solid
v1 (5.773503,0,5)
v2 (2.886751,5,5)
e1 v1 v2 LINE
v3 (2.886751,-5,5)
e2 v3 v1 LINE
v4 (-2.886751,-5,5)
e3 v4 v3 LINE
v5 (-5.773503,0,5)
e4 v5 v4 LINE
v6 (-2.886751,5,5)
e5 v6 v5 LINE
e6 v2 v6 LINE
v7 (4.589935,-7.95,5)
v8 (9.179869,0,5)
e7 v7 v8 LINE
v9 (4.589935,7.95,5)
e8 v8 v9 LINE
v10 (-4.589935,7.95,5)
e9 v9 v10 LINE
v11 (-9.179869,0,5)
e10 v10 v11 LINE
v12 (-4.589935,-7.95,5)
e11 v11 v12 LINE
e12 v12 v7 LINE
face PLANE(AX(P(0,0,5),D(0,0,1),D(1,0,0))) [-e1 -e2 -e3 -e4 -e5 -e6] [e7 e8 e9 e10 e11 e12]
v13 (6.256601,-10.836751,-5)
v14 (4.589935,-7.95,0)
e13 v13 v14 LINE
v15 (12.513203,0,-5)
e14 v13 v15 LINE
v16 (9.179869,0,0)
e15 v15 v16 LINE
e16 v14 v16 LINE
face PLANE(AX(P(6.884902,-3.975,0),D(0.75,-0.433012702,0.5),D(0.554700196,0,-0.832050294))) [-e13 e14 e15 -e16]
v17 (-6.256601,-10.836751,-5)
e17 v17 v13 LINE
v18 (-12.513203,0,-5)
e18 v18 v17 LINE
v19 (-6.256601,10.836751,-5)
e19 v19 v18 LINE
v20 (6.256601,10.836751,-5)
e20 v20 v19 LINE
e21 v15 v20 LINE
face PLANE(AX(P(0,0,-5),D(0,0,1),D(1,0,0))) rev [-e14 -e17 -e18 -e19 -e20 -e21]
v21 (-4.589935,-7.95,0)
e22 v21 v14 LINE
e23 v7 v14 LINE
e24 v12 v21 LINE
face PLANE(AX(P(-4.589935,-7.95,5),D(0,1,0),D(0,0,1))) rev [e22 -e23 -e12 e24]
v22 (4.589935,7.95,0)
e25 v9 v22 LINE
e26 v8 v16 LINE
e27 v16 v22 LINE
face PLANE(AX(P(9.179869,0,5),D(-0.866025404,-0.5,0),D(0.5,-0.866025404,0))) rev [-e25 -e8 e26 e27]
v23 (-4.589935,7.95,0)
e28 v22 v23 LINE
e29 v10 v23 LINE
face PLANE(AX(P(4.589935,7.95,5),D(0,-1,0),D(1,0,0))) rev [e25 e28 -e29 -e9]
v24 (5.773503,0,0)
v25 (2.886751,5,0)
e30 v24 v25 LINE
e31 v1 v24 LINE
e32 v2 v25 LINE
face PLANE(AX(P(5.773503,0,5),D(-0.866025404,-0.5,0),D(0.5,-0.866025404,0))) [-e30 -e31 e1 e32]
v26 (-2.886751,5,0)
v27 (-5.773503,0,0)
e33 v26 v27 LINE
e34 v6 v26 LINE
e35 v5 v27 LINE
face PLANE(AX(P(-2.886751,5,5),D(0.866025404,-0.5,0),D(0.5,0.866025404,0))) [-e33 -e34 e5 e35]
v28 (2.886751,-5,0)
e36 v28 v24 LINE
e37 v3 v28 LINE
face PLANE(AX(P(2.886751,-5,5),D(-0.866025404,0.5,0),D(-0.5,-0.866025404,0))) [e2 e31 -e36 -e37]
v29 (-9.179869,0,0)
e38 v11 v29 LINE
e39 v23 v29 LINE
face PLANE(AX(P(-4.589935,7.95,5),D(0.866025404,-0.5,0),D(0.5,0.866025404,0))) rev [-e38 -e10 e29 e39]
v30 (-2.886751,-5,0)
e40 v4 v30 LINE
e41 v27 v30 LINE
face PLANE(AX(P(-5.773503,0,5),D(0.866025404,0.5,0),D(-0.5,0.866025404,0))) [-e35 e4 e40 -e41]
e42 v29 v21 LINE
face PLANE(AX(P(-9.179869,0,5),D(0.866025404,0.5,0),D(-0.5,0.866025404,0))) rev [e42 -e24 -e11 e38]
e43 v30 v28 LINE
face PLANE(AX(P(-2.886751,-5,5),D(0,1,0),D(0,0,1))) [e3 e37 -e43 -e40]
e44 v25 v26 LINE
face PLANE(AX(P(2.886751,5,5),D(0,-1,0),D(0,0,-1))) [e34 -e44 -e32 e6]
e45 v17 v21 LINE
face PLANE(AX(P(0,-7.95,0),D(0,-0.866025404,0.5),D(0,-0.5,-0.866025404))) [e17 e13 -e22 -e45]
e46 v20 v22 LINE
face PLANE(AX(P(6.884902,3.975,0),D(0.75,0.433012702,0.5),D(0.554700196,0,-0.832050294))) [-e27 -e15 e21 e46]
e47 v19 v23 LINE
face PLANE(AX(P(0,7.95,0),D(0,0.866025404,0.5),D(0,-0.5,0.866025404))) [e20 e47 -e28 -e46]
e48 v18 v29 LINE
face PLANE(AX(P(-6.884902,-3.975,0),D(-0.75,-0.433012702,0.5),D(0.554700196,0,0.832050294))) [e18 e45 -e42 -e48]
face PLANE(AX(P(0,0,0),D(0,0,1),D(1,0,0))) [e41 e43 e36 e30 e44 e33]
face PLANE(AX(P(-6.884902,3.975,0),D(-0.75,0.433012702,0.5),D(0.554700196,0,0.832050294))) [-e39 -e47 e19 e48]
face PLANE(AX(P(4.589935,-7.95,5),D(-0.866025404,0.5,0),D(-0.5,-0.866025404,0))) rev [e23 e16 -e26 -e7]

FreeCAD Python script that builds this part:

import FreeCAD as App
import Part
import Sketcher
from FreeCAD import Vector
Q = App.Units.Quantity


def faces_at(feature, points):
    """Names of the faces that lie closest to the given points."""
    faces = feature.Shape.Faces
    near = lambda p: min(range(len(faces)), key=lambda i: faces[i].distToShape(Part.Vertex(*p))[0])
    return sorted({f"Face{near(p) + 1}" for p in points})

doc = App.newDocument("Part")
body = doc.addObject("PartDesign::Body", "Body")

# Sketch on XY plane
sketch1 = body.newObject("Sketcher::SketchObject", "Sketch")
sketch1.AttachmentSupport = (doc.getObject("XY_Plane"), [""])
sketch1.MapMode = "FlatFace"
sketch1.addGeometry(Part.LineSegment(Vector(9, 0, 0), Vector(5, 8, 0)), False)
sketch1.addGeometry(Part.LineSegment(Vector(5, 8, 0), Vector(-5, 8, 0)), False)
sketch1.addGeometry(Part.LineSegment(Vector(-5, 8, 0), Vector(-9, 0, 0)), False)
sketch1.addGeometry(Part.LineSegment(Vector(-9, 0, 0), Vector(-5, -8, 0)), False)
sketch1.addGeometry(Part.LineSegment(Vector(-5, -8, 0), Vector(5, -8, 0)), False)
sketch1.addGeometry(Part.LineSegment(Vector(5, -8, 0), Vector(9, 0, 0)), False)
sketch1.addGeometry(Part.LineSegment(Vector(3, 5, 0), Vector(6, 0, 0)), False)
sketch1.addGeometry(Part.LineSegment(Vector(6, 0, 0), Vector(3, -5, 0)), False)
sketch1.addGeometry(Part.LineSegment(Vector(3, -5, 0), Vector(-3, -5, 0)), False)
sketch1.addGeometry(Part.LineSegment(Vector(-3, -5, 0), Vector(-6, 0, 0)), False)
sketch1.addGeometry(Part.LineSegment(Vector(-6, 0, 0), Vector(-3, 5, 0)), False)
sketch1.addGeometry(Part.LineSegment(Vector(-3, 5, 0), Vector(3, 5, 0)), False)
sketch1.addConstraint(Sketcher.Constraint("Coincident", 0, 2, 1, 1))
sketch1.addConstraint(Sketcher.Constraint("Coincident", 1, 2, 2, 1))
sketch1.addConstraint(Sketcher.Constraint("Coincident", 2, 2, 3, 1))
sketch1.addConstraint(Sketcher.Constraint("Coincident", 3, 2, 4, 1))
sketch1.addConstraint(Sketcher.Constraint("Coincident", 4, 2, 5, 1))
sketch1.addConstraint(Sketcher.Constraint("Coincident", 5, 2, 0, 1))
sketch1.addConstraint(Sketcher.Constraint("Coincident", 6, 2, 7, 1))
sketch1.addConstraint(Sketcher.Constraint("Coincident", 7, 2, 8, 1))
sketch1.addConstraint(Sketcher.Constraint("Coincident", 8, 2, 9, 1))
sketch1.addConstraint(Sketcher.Constraint("Coincident", 9, 2, 10, 1))
sketch1.addConstraint(Sketcher.Constraint("Coincident", 10, 2, 11, 1))
sketch1.addConstraint(Sketcher.Constraint("Coincident", 11, 2, 6, 1))
sketch1.addConstraint(Sketcher.Constraint("Horizontal", 1))
sketch1.addConstraint(Sketcher.Constraint("Horizontal", 4))
sketch1.addConstraint(Sketcher.Constraint("Horizontal", 8))
sketch1.addConstraint(Sketcher.Constraint("Horizontal", 11))
sketch1.addConstraint(Sketcher.Constraint("Symmetric", 0, 2, 3, 2, -1, 1))
sketch1.addConstraint(Sketcher.Constraint("Symmetric", 2, 2, 5, 2, -1, 1))
sketch1.addConstraint(Sketcher.Constraint("Symmetric", 6, 2, 9, 2, -1, 1))
sketch1.addConstraint(Sketcher.Constraint("Symmetric", 7, 2, 10, 2, -1, 1))
sketch1.addConstraint(Sketcher.Constraint("PointOnObject", 2, 2, -1))
sketch1.addConstraint(Sketcher.Constraint("PointOnObject", 6, 2, -1))
sketch1.addConstraint(Sketcher.Constraint("Parallel", 2, 5))
sketch1.addConstraint(Sketcher.Constraint("Parallel", 3, 6))
sketch1.addConstraint(Sketcher.Constraint("Parallel", 5, 7))
sketch1.addConstraint(Sketcher.Constraint("Parallel", 6, 9))
sketch1.addConstraint(Sketcher.Constraint("Vertical", 1, 2, 3, 2))
sketch1.addConstraint(Sketcher.Constraint("Angle", 0, Q("120 deg")))
sketch1.addConstraint(Sketcher.Constraint("DistanceY", 7, 2, -1, 1, Q("5 mm")))
sketch1.addConstraint(Sketcher.Constraint("DistanceY", 3, 2, 1, 2, Q("15.9 mm")))
sketch1.addConstraint(Sketcher.Constraint("DistanceX", 1, 2, 1, 1, Q("9.179869 mm")))
sketch1.addConstraint(Sketcher.Constraint("DistanceX", 8, 2, 8, 1, Q("5.773503 mm")))
pad1 = body.newObject("PartDesign::Pad", "Pad")
pad1.Profile = sketch1
pad1.Length = 5
body2 = doc.addObject("PartDesign::Body", "Body001")

# Sketch on XY plane
sketch2 = body2.newObject("Sketcher::SketchObject", "Sketch001")
sketch2.AttachmentSupport = (doc.getObject("XY_Plane001"), [""])
sketch2.MapMode = "FlatFace"
sketch2.addGeometry(Part.LineSegment(Vector(9, 0, 0), Vector(5, 8, 0)), False)
sketch2.addGeometry(Part.LineSegment(Vector(5, 8, 0), Vector(-5, 8, 0)), False)
sketch2.addGeometry(Part.LineSegment(Vector(-5, 8, 0), Vector(-9, 0, 0)), False)
sketch2.addGeometry(Part.LineSegment(Vector(-9, 0, 0), Vector(-5, -8, 0)), False)
sketch2.addGeometry(Part.LineSegment(Vector(-5, -8, 0), Vector(5, -8, 0)), False)
sketch2.addGeometry(Part.LineSegment(Vector(5, -8, 0), Vector(9, 0, 0)), False)
sketch2.addConstraint(Sketcher.Constraint("Coincident", 0, 2, 1, 1))
sketch2.addConstraint(Sketcher.Constraint("Coincident", 1, 2, 2, 1))
sketch2.addConstraint(Sketcher.Constraint("Coincident", 2, 2, 3, 1))
sketch2.addConstraint(Sketcher.Constraint("Coincident", 3, 2, 4, 1))
sketch2.addConstraint(Sketcher.Constraint("Coincident", 4, 2, 5, 1))
sketch2.addConstraint(Sketcher.Constraint("Coincident", 5, 2, 0, 1))
sketch2.addConstraint(Sketcher.Constraint("Horizontal", 1))
sketch2.addConstraint(Sketcher.Constraint("Horizontal", 4))
sketch2.addConstraint(Sketcher.Constraint("Symmetric", 0, 2, 3, 2, -1, 1))
sketch2.addConstraint(Sketcher.Constraint("Symmetric", 2, 2, 5, 2, -1, 1))
sketch2.addConstraint(Sketcher.Constraint("PointOnObject", 2, 2, -1))
sketch2.addConstraint(Sketcher.Constraint("Parallel", 2, 5))
sketch2.addConstraint(Sketcher.Constraint("Vertical", 1, 2, 3, 2))
sketch2.addConstraint(Sketcher.Constraint("Angle", 0, Q("120 deg")))
sketch2.addConstraint(Sketcher.Constraint("DistanceY", 3, 2, 1, 2, Q("15.9 mm")))
sketch2.addConstraint(Sketcher.Constraint("DistanceX", 1, 2, 1, 1, Q("9.179869 mm")))
pad2 = body2.newObject("PartDesign::Pad", "Pad001")
pad2.Profile = sketch2
pad2.Length = 5
pad2.Reversed = True
doc.recompute()

draft = body2.newObject("PartDesign::Draft", "Draft")
draft.Base = (pad2, faces_at(pad2, [
    (6.885, 3.975, -2.5),
    (0, 7.95, -2.5),
    (-6.885, 3.975, -2.5),
    (-6.885, -3.975, -2.5),
    (0, -7.95, -2.5),
    (6.885, -3.975, -2.5),
]))
draft.NeutralPlane = (doc.getObject("XY_Plane001"), [""])
draft.Angle = 30
draft.Reversed = False
doc.recompute()

boolean = body.newObject("PartDesign::Boolean", "Boolean")
boolean.Type = "Fuse"
boolean.addObjects([body2])

doc.recompute()
